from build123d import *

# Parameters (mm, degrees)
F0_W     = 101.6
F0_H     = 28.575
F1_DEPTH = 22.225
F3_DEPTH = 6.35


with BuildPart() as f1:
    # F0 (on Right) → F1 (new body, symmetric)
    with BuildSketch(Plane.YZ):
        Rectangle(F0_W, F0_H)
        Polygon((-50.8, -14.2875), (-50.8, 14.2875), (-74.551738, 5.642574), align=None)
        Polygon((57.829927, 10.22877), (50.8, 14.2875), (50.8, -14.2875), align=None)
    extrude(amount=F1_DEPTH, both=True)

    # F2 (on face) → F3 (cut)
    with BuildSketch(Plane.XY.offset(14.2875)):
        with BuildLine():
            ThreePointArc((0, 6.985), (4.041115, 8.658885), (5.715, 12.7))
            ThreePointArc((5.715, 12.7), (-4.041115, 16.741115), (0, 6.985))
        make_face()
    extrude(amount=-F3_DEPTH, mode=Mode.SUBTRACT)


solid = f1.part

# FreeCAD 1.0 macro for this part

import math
import FreeCAD as App
import Part
import Sketcher
Q = App.Units.Quantity

doc = App.newDocument("Part")
body = doc.addObject("PartDesign::Body", "Body")

# Sketch on YZ plane
sketch1 = body.newObject("Sketcher::SketchObject", "Sketch")
sketch1.AttachmentSupport = (doc.getObject("YZ_Plane"), [""])
sketch1.MapMode = "FlatFace"
sketch1.addGeometry([
    Part.LineSegment(App.Vector(-51, -14, 0), App.Vector(51, -14, 0)),  # 0
    Part.LineSegment(App.Vector(51, -14, 0), App.Vector(58, 10, 0)),  # 1
    Part.LineSegment(App.Vector(58, 10, 0), App.Vector(51, 14, 0)),  # 2
    Part.LineSegment(App.Vector(51, 14, 0), App.Vector(-51, 14, 0)),  # 3
    Part.LineSegment(App.Vector(-51, 14, 0), App.Vector(-75, 6, 0)),  # 4
    Part.LineSegment(App.Vector(-75, 6, 0), App.Vector(-51, -14, 0)),  # 5
], False)
sketch1.addConstraint([
    Sketcher.Constraint("Coincident", 0, 2, 1, 1),
    Sketcher.Constraint("Coincident", 1, 2, 2, 1),
    Sketcher.Constraint("Coincident", 2, 2, 3, 1),
    Sketcher.Constraint("Coincident", 3, 2, 4, 1),
    Sketcher.Constraint("Coincident", 4, 2, 5, 1),
    Sketcher.Constraint("Coincident", 5, 2, 0, 1),
    Sketcher.Constraint("Horizontal", 0),
    Sketcher.Constraint("Horizontal", 3),
    Sketcher.Constraint("Symmetric", 0, 2, 3, 2, -1, 1),
    Sketcher.Constraint("Vertical", 0, 2, 2, 2),
    Sketcher.Constraint("Vertical", 3, 2, 5, 2),
    Sketcher.Constraint("DistanceX", 0, 1, 0, 2, Q("4 in")),
    Sketcher.Constraint("Angle", 1, Q("74.000001 deg")),
    Sketcher.Constraint("Angle", 2, Q("150.000002 deg")),
    Sketcher.Constraint("Angle", 4, Q("-159.999999 deg")),
    Sketcher.Constraint("Angle", 5, Q("-39.999999 deg")),
    Sketcher.Constraint("DistanceY", 0, 2, -1, 1, Q("0.5625 in")),
])
pad1 = body.newObject("PartDesign::Pad", "Pad")
pad1.Profile = sketch1
pad1.Length = Q("1.75 in")
pad1.Midplane = True

# Sketch on XY plane
sketch2 = body.newObject("Sketcher::SketchObject", "Sketch001")
sketch2.AttachmentSupport = (doc.getObject("XY_Plane"), [""])
sketch2.MapMode = "FlatFace"
sketch2.AttachmentOffset = App.Placement(App.Vector(0, 0, 0.5625 * 25.4), App.Rotation())
sketch2.addGeometry([
    Part.ArcOfCircle(Part.Circle(App.Vector(0, 13, 0), App.Vector(0, 0, 1), 6), math.radians(-90), math.radians(0)),
    Part.ArcOfCircle(Part.Circle(App.Vector(0, 13, 0), App.Vector(0, 0, 1), 6), math.radians(0), math.radians(270)),
], False)
sketch2.addConstraint([
    Sketcher.Constraint("Tangent", 0, 1, 1, 2),
    Sketcher.Constraint("Coincident", 1, 1, 0, 2),
    Sketcher.Constraint("PointOnObject", 0, 3, -2),
    Sketcher.Constraint("PointOnObject", 0, 1, -2),
    Sketcher.Constraint("Horizontal", 0, 3, 1, 1),
    Sketcher.Constraint("Radius", 0, Q("0.225 in")),
    Sketcher.Constraint("DistanceY", -1, 1, 0, 3, Q("0.5 in")),
])
pocket1 = body.newObject("PartDesign::Pocket", "Pocket")
pocket1.Profile = sketch2
pocket1.Length = Q("0.25 in")

doc.recompute()
